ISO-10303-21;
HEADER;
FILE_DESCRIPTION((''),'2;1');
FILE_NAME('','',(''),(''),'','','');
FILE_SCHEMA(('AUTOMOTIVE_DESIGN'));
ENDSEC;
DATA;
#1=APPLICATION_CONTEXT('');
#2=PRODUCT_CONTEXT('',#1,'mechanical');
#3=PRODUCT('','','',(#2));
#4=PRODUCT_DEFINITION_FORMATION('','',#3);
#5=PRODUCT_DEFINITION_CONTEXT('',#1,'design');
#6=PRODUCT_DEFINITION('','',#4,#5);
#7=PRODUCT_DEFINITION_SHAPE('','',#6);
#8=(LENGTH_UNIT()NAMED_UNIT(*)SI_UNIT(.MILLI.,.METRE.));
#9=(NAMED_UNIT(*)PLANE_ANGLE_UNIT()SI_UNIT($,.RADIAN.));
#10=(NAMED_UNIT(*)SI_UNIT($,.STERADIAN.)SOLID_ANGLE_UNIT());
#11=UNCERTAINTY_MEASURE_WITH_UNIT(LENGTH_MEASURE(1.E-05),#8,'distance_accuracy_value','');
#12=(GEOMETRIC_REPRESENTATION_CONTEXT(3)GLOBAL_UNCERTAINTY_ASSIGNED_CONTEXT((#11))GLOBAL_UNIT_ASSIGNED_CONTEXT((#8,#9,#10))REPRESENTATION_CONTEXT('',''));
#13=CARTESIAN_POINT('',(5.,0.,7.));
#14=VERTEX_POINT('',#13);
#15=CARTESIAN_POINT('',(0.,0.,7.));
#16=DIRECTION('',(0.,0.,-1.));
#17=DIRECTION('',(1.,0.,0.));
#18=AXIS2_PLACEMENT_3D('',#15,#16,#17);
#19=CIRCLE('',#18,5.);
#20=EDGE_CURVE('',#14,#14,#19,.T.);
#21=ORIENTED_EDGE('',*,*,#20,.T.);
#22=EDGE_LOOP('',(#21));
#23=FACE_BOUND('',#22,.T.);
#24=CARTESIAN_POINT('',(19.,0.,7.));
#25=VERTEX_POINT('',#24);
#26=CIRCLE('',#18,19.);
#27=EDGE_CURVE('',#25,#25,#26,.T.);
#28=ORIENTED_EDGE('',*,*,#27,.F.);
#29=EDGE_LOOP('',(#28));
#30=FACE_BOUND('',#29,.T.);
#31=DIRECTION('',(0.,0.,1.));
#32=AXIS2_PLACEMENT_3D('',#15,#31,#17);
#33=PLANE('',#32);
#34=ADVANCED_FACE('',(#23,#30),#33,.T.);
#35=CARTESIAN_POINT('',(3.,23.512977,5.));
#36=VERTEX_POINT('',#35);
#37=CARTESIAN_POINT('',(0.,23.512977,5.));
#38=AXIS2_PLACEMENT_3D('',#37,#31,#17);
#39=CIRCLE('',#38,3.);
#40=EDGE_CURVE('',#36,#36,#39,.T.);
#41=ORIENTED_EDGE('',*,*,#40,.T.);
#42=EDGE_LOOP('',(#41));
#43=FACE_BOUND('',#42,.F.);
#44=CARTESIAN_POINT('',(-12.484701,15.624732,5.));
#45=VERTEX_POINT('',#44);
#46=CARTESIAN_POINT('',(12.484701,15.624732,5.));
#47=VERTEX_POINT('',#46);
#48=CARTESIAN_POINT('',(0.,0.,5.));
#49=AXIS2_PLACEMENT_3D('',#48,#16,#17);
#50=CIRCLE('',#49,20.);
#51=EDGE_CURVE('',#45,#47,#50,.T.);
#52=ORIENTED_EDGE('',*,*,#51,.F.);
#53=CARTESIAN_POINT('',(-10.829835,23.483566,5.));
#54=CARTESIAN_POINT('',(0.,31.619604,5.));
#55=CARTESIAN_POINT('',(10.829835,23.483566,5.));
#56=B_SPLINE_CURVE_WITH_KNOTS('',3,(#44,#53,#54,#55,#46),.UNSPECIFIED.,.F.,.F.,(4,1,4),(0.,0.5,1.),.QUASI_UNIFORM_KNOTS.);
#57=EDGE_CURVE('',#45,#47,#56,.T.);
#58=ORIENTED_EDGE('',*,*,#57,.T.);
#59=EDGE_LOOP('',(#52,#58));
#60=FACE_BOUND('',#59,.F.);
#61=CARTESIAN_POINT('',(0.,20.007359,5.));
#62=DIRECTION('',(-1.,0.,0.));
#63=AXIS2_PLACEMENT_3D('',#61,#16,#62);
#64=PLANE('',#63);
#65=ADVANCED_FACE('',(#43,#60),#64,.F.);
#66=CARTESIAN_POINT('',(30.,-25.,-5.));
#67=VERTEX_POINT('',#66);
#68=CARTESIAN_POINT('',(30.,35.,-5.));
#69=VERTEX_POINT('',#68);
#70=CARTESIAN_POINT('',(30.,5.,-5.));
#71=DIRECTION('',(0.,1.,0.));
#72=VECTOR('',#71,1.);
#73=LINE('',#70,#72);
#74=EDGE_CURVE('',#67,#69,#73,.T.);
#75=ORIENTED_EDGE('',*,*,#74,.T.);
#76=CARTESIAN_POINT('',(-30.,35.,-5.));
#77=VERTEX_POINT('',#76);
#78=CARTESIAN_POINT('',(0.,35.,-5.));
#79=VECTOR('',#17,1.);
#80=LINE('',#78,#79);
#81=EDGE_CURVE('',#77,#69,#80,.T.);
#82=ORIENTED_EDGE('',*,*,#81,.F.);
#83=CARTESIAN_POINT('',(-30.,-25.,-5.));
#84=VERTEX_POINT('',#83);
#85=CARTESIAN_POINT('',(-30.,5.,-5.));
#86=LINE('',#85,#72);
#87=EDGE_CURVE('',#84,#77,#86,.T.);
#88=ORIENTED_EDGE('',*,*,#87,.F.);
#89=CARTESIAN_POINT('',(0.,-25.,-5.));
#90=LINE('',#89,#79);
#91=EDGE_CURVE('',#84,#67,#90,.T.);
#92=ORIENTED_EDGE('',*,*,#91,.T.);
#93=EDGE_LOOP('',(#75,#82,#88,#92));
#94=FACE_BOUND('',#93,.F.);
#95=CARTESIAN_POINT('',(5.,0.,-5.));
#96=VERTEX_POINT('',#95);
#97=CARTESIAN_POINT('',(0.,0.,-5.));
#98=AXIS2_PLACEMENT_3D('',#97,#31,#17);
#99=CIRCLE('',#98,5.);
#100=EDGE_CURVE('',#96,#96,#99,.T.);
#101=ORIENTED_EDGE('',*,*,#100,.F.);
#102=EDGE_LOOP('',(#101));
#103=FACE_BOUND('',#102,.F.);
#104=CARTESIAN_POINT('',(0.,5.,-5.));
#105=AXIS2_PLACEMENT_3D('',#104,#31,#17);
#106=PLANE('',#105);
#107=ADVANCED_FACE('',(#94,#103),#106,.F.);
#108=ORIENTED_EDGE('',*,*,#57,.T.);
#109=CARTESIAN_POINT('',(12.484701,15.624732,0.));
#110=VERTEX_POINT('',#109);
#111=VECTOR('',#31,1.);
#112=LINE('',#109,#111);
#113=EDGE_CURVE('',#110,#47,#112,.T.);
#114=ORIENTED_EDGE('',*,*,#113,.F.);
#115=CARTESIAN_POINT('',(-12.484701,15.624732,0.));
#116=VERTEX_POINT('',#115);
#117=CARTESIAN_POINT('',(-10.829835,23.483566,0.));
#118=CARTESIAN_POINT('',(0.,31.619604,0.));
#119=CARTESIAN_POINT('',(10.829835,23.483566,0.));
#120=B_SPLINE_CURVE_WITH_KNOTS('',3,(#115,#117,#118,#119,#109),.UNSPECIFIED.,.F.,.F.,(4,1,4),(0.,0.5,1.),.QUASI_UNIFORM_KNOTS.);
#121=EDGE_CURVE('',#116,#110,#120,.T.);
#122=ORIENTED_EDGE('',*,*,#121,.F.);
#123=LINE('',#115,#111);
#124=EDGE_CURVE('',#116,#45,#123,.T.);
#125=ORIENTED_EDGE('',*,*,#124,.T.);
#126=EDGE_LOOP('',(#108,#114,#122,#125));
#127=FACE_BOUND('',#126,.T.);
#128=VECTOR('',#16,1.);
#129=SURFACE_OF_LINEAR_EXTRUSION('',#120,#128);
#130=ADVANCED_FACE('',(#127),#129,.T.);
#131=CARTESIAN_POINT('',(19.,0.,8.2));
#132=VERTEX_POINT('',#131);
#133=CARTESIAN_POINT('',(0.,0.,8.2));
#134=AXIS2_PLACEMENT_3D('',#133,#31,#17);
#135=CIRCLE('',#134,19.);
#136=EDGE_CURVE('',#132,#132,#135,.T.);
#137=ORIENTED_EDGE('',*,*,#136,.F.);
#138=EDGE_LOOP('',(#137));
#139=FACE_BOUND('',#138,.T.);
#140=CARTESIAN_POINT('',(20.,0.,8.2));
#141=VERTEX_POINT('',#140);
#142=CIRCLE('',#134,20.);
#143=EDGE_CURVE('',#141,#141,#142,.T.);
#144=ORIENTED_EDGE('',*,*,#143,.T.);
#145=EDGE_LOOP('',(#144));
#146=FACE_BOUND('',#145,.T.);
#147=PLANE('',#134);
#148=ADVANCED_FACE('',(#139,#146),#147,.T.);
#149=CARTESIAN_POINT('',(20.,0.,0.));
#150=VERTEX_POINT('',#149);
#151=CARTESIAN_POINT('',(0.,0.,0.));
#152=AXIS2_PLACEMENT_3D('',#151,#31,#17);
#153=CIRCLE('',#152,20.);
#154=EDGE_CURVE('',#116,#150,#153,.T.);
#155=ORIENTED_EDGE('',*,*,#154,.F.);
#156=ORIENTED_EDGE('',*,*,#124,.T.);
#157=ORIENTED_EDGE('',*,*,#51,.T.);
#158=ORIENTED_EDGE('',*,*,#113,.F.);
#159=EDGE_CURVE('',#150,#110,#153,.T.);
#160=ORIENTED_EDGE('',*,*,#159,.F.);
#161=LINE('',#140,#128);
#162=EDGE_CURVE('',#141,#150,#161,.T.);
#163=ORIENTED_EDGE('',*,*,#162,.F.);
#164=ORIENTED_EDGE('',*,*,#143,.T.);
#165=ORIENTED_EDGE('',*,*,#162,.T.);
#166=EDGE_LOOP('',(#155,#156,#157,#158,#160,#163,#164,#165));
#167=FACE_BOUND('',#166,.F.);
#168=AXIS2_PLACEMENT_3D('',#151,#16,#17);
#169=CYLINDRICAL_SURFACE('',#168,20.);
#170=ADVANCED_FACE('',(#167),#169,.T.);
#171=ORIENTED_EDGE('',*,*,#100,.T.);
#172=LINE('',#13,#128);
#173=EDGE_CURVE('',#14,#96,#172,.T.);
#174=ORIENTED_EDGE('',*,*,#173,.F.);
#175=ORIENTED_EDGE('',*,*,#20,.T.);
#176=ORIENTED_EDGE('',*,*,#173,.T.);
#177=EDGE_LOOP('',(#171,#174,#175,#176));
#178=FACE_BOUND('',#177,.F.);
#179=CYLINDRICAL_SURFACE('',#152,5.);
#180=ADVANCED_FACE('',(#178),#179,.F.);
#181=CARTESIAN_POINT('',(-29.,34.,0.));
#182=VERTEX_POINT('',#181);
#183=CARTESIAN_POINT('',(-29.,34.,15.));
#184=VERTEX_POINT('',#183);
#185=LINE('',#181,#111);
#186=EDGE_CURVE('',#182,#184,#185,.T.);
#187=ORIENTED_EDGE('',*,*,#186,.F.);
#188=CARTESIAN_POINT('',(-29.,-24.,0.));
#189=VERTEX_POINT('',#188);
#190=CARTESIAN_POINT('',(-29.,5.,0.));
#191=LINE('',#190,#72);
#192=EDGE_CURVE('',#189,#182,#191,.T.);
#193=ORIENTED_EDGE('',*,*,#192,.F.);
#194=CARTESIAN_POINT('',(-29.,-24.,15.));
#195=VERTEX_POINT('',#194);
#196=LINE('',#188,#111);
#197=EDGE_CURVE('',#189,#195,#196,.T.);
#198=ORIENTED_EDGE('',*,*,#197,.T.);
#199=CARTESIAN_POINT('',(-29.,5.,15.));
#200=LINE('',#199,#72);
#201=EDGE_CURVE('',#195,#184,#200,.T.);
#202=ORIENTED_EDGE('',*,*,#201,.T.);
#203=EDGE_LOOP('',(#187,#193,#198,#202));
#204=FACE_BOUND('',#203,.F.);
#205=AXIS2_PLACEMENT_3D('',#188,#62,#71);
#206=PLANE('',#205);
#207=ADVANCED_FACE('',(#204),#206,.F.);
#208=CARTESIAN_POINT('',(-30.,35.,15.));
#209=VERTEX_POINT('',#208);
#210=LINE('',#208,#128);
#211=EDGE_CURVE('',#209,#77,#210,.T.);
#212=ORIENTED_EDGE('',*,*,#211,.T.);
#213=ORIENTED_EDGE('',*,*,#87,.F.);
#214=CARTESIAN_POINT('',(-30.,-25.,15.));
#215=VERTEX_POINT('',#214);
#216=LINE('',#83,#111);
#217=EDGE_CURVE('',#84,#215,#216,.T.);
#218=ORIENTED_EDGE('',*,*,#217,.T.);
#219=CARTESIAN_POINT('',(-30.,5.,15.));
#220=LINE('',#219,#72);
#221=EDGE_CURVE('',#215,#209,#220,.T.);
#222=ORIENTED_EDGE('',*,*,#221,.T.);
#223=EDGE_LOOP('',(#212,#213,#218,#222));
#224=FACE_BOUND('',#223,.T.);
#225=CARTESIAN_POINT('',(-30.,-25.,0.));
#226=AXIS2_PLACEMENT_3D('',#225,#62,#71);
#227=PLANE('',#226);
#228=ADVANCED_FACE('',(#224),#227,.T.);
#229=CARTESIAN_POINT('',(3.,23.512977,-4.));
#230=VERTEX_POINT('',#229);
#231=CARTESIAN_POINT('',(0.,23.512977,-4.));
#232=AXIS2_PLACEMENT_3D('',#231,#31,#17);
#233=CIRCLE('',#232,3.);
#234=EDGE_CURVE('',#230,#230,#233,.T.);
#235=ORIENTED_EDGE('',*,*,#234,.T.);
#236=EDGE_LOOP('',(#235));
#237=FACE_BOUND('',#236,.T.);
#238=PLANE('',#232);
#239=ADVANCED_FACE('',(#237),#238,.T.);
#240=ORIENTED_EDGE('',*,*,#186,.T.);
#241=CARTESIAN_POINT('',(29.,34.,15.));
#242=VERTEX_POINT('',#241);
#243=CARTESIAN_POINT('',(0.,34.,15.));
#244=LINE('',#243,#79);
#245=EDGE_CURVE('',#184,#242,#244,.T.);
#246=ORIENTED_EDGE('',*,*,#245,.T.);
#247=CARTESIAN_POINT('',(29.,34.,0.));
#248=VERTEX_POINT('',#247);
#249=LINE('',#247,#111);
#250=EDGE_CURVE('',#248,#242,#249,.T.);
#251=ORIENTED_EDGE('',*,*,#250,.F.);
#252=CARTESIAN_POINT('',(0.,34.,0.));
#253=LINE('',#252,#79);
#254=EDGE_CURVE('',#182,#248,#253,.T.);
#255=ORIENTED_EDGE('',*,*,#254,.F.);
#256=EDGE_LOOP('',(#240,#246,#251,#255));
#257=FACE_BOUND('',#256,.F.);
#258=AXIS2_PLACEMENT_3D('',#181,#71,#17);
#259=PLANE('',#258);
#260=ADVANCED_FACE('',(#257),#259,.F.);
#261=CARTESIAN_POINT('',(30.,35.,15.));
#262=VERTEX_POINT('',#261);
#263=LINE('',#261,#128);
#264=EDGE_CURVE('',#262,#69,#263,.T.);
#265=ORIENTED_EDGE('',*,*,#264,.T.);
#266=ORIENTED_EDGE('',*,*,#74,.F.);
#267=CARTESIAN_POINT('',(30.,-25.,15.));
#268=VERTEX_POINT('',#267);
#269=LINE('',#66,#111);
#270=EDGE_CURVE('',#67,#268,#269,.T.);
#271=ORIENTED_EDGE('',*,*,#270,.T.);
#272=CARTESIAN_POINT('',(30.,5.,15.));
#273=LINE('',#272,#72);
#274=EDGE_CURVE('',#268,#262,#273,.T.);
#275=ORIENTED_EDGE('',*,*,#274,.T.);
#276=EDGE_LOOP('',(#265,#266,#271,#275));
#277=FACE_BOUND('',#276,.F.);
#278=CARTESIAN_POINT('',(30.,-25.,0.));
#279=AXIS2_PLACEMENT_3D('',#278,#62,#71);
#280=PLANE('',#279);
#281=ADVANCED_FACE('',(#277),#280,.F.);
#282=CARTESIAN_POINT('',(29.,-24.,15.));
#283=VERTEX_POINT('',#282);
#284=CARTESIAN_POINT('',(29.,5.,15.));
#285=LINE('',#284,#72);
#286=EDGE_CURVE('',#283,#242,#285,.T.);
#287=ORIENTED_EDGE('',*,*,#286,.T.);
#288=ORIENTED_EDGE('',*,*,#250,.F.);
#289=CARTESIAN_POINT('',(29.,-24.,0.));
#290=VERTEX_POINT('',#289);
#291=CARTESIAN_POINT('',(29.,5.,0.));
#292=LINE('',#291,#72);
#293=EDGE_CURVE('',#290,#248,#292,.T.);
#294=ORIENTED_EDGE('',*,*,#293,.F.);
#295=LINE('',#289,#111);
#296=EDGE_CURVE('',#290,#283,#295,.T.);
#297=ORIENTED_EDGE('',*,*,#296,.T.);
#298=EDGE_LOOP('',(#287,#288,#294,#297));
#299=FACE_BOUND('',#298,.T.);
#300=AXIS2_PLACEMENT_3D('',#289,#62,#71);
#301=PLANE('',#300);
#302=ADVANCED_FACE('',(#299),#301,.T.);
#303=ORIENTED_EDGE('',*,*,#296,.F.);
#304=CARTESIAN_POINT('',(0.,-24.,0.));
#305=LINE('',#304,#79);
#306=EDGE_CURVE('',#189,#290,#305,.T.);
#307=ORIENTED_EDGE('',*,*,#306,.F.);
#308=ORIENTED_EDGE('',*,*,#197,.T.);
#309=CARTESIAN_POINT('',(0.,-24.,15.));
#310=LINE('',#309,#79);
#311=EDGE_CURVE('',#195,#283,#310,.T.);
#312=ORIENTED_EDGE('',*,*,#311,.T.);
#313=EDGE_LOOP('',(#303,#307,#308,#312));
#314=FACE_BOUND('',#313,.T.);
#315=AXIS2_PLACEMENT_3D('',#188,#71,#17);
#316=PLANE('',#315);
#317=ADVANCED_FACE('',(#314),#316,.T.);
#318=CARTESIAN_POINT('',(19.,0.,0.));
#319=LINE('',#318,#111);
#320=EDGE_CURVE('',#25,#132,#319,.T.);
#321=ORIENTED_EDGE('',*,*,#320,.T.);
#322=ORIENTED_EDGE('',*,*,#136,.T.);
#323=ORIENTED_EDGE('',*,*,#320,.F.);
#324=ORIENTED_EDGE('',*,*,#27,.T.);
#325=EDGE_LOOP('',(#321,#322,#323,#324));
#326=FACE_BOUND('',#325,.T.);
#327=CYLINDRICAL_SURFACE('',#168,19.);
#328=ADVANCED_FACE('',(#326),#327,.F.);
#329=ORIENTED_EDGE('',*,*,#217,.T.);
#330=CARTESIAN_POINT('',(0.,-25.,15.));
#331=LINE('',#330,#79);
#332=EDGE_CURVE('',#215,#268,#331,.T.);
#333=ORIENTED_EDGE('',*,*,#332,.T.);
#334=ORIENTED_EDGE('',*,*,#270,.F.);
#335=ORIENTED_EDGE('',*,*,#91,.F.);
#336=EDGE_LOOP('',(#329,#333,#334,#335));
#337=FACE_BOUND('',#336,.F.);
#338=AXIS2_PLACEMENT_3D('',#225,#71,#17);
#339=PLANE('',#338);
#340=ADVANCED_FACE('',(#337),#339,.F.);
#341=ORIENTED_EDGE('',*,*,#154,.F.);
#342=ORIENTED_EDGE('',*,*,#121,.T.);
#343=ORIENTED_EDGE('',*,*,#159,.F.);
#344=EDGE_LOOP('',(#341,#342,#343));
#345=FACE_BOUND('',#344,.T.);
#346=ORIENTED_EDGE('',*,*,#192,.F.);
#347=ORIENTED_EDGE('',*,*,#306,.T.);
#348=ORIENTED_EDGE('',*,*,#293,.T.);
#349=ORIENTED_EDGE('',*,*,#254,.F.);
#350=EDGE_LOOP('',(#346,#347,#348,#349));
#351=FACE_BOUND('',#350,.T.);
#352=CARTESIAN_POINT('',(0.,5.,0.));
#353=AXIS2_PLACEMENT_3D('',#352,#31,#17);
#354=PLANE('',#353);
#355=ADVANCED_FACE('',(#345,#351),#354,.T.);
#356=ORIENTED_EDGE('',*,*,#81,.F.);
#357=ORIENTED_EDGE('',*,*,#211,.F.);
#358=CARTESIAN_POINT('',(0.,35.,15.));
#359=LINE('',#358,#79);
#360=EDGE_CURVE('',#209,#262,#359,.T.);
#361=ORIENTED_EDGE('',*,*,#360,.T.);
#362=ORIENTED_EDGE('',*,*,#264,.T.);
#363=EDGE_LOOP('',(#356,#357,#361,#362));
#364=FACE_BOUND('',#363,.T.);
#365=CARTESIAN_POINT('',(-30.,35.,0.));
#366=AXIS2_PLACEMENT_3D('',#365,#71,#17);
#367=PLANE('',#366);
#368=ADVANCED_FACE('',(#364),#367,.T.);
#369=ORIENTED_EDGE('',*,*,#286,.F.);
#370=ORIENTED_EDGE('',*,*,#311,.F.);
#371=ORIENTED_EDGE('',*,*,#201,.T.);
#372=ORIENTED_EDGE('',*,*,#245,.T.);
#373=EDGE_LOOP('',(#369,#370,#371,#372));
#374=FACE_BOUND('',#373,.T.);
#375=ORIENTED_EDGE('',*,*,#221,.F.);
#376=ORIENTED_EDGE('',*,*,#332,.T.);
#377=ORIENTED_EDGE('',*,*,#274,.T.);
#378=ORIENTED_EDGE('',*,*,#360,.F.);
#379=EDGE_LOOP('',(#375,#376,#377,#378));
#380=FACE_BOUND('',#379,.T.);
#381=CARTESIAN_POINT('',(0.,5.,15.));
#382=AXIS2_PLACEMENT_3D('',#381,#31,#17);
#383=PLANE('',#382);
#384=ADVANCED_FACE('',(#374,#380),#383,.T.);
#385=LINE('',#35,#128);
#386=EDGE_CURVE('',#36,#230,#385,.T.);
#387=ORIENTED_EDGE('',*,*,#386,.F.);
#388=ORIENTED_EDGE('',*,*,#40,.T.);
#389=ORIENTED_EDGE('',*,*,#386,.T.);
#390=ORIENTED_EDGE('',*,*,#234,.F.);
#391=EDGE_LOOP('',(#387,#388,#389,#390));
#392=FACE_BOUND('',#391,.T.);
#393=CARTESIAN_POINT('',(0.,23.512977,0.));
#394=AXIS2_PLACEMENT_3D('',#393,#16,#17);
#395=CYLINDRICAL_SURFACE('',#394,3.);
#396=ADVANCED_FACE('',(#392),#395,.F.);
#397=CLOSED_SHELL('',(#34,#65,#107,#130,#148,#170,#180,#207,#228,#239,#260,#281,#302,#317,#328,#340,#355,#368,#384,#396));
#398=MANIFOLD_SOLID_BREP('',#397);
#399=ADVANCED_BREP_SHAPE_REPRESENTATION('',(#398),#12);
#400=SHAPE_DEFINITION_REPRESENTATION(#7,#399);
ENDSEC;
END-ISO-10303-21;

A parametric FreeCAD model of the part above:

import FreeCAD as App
import Part
import Sketcher
from FreeCAD import Vector
Q = App.Units.Quantity


def add_polygon(sketch, points):
    """Adds a closed chain of lines whose ends are joined by coincident constraints."""
    first, n = sketch.GeometryCount, len(points)
    for a, b in zip(points, points[1:] + points[:1]):
        sketch.addGeometry(Part.LineSegment(App.Vector(*a, 0), App.Vector(*b, 0)), False)
    for i in range(n):
        sketch.addConstraint(Sketcher.Constraint("Coincident", first + i, 2, first + (i + 1) % n, 1))

doc = App.newDocument("Part")
params = doc.addObject("Spreadsheet::Sheet", "Params")
for row, (alias, value) in enumerate([
    ("sketch1_diameter", "40 mm"),
    ("pad1_length", "7 mm"),
    ("sketch2_diameter", "6 mm"),
    ("pad2_length", "5 mm"),
    ("sketch3_diameter", "40 mm"),
    ("sketch3_diameter2", "38 mm"),
    ("pad3_length", "8.2 mm"),
    ("sketch4_width", "60 mm"),
    ("pad4_length", "5 mm"),
    ("sketch5_width", "60 mm"),
    ("sketch5_width2", "58 mm"),
    ("pad5_length", "15 mm"),
    ("sketch6_diameter", "6 mm"),
    ("pocket1_length", "4 mm"),
    ("sketch7_diameter", "10 mm"),
], start=1):
    params.set(f"A{row}", alias)
    params.set(f"B{row}", "=" + value)
    params.setAlias(f"B{row}", alias)

body = doc.addObject("PartDesign::Body", "Body")

sketch1 = body.newObject("Sketcher::SketchObject", "Sketch")
sketch1.AttachmentSupport = (doc.getObject("XY_Plane"), [""])
sketch1.MapMode = "FlatFace"
sketch1.addGeometry(Part.Circle(Vector(0, 0, 0), Vector(0, 0, 1), 20), False)
sketch1.addConstraint([
    Sketcher.Constraint("Coincident", 0, 3, -1, 1),
    Sketcher.Constraint("Diameter", 0, Q("40 mm")),
])
sketch1.setExpression("Constraints[1]", "Params.sketch1_diameter")
pad1 = body.newObject("PartDesign::Pad", "Pad")
pad1.Profile = sketch1
pad1.setExpression("Length", "Params.pad1_length")

sketch2 = body.newObject("Sketcher::SketchObject", "Sketch001")
sketch2.AttachmentSupport = (doc.getObject("XY_Plane"), [""])
sketch2.MapMode = "FlatFace"
sketch2.addGeometry([
    Part.BSplineCurve([Vector(-12.484701, 15.624732, 0), Vector(-10.829835, 23.483566, 0), Vector(0, 31.619604, 0), Vector(10.829835, 23.483566, 0), Vector(12.484701, 15.624732, 0)], [4, 1, 4], [0, 0.5, 1], False, 3, [1, 1, 1, 1, 1], False),
    Part.LineSegment(Vector(-12.484701, 15.624732, 0), Vector(12.484701, 15.624732, 0)),
    Part.Circle(Vector(0, 23.512977, 0), Vector(0, 0, 1), 3),
], False)
sketch2.addConstraint([
    Sketcher.Constraint("Block", 0),
    Sketcher.Constraint("Coincident", 0, 1, 1, 1),
    Sketcher.Constraint("Coincident", 1, 2, 0, 2),
    Sketcher.Constraint("PointOnObject", 2, 3, -2),
    Sketcher.Constraint("Diameter", 2, Q("6 mm")),
    Sketcher.Constraint("DistanceY", -1, 1, 2, 3, Q("23.512977 mm")),
])
sketch2.setExpression("Constraints[4]", "Params.sketch2_diameter")
pad2 = body.newObject("PartDesign::Pad", "Pad001")
pad2.Profile = sketch2
pad2.setExpression("Length", "Params.pad2_length")

sketch3 = body.newObject("Sketcher::SketchObject", "Sketch002")
sketch3.AttachmentSupport = (doc.getObject("XY_Plane"), [""])
sketch3.MapMode = "FlatFace"
sketch3.addGeometry([
    Part.Circle(Vector(0, 0, 0), Vector(0, 0, 1), 20),
    Part.Circle(Vector(0, 0, 0), Vector(0, 0, 1), 19),
], False)
sketch3.addConstraint([
    Sketcher.Constraint("Coincident", 0, 3, -1, 1),
    Sketcher.Constraint("Coincident", 1, 3, -1, 1),
    Sketcher.Constraint("Diameter", 0, Q("40 mm")),
    Sketcher.Constraint("Diameter", 1, Q("38 mm")),
])
sketch3.setExpression("Constraints[2]", "Params.sketch3_diameter")
sketch3.setExpression("Constraints[3]", "Params.sketch3_diameter2")
pad3 = body.newObject("PartDesign::Pad", "Pad002")
pad3.Profile = sketch3
pad3.setExpression("Length", "Params.pad3_length")

sketch4 = body.newObject("Sketcher::SketchObject", "Sketch003")
sketch4.AttachmentSupport = (doc.getObject("XY_Plane"), [""])
sketch4.MapMode = "FlatFace"
add_polygon(sketch4, [(-30, 35), (-30, -25), (30, -25), (30, 35)])
sketch4.addConstraint([
    Sketcher.Constraint("Vertical", 0),
    Sketcher.Constraint("Horizontal", 1),
    Sketcher.Constraint("Vertical", 2),
    Sketcher.Constraint("Horizontal", 3),
    Sketcher.Constraint("Equal", 3, 0),
    Sketcher.Constraint("DistanceX", 1, 1, 1, 2, Q("60 mm")),
    Sketcher.Constraint("DistanceX", 0, 2, -1, 1, Q("30 mm")),
    Sketcher.Constraint("DistanceY", 0, 2, -1, 1, Q("25 mm")),
])
sketch4.setExpression("Constraints[9]", "Params.sketch4_width")
pad4 = body.newObject("PartDesign::Pad", "Pad003")
pad4.Profile = sketch4
pad4.setExpression("Length", "Params.pad4_length")
pad4.Reversed = True

sketch5 = body.newObject("Sketcher::SketchObject", "Sketch004")
sketch5.AttachmentSupport = (doc.getObject("XY_Plane"), [""])
sketch5.MapMode = "FlatFace"
add_polygon(sketch5, [(-30, 35), (-30, -25), (30, -25), (30, 35)])
add_polygon(sketch5, [(29, -24), (-29, -24), (-29, 34), (29, 34)])
sketch5.addConstraint([
    Sketcher.Constraint("Vertical", 0),
    Sketcher.Constraint("Horizontal", 1),
    Sketcher.Constraint("Vertical", 2),
    Sketcher.Constraint("Horizontal", 3),
    Sketcher.Constraint("Horizontal", 4),
    Sketcher.Constraint("Vertical", 5),
    Sketcher.Constraint("Horizontal", 6),
    Sketcher.Constraint("Vertical", 7),
    Sketcher.Constraint("Equal", 3, 0),
    Sketcher.Constraint("Equal", 6, 5),
    Sketcher.Constraint("DistanceX", 1, 1, 1, 2, Q("60 mm")),
    Sketcher.Constraint("DistanceX", 4, 2, 4, 1, Q("58 mm")),
    Sketcher.Constraint("DistanceX", 0, 2, -1, 1, Q("30 mm")),
    Sketcher.Constraint("DistanceY", 0, 2, -1, 1, Q("25 mm")),
    Sketcher.Constraint("DistanceX", 4, 2, -1, 1, Q("29 mm")),
    Sketcher.Constraint("DistanceY", 4, 2, -1, 1, Q("24 mm")),
])
sketch5.setExpression("Constraints[18]", "Params.sketch5_width")
sketch5.setExpression("Constraints[19]", "Params.sketch5_width2")
pad5 = body.newObject("PartDesign::Pad", "Pad004")
pad5.Profile = sketch5
pad5.setExpression("Length", "Params.pad5_length")

sketch6 = body.newObject("Sketcher::SketchObject", "Sketch005")
sketch6.AttachmentSupport = (doc.getObject("XY_Plane"), [""])
sketch6.MapMode = "FlatFace"
sketch6.addGeometry(Part.Circle(Vector(0, 23.5, 0), Vector(0, 0, 1), 3), False)
sketch6.addConstraint([
    Sketcher.Constraint("PointOnObject", 0, 3, -2),
    Sketcher.Constraint("Diameter", 0, Q("6 mm")),
    Sketcher.Constraint("DistanceY", -1, 1, 0, 3, Q("23.512977 mm")),
])
sketch6.setExpression("Constraints[1]", "Params.sketch6_diameter")
pocket1 = body.newObject("PartDesign::Pocket", "Pocket")
pocket1.Profile = sketch6
pocket1.setExpression("Length", "Params.pocket1_length")

sketch7 = body.newObject("Sketcher::SketchObject", "Sketch006")
sketch7.AttachmentSupport = (doc.getObject("XY_Plane"), [""])
sketch7.MapMode = "FlatFace"
sketch7.addGeometry(Part.Circle(Vector(0, 0, 0), Vector(0, 0, 1), 5), False)
sketch7.addConstraint([
    Sketcher.Constraint("Coincident", 0, 3, -1, 1),
    Sketcher.Constraint("Diameter", 0, Q("10 mm")),
])
sketch7.setExpression("Constraints[1]", "Params.sketch7_diameter")
pocket2 = body.newObject("PartDesign::Pocket", "Pocket001")
pocket2.Profile = sketch7
pocket2.Type = "ThroughAll"
pocket2.Midplane = True

doc.recompute()
